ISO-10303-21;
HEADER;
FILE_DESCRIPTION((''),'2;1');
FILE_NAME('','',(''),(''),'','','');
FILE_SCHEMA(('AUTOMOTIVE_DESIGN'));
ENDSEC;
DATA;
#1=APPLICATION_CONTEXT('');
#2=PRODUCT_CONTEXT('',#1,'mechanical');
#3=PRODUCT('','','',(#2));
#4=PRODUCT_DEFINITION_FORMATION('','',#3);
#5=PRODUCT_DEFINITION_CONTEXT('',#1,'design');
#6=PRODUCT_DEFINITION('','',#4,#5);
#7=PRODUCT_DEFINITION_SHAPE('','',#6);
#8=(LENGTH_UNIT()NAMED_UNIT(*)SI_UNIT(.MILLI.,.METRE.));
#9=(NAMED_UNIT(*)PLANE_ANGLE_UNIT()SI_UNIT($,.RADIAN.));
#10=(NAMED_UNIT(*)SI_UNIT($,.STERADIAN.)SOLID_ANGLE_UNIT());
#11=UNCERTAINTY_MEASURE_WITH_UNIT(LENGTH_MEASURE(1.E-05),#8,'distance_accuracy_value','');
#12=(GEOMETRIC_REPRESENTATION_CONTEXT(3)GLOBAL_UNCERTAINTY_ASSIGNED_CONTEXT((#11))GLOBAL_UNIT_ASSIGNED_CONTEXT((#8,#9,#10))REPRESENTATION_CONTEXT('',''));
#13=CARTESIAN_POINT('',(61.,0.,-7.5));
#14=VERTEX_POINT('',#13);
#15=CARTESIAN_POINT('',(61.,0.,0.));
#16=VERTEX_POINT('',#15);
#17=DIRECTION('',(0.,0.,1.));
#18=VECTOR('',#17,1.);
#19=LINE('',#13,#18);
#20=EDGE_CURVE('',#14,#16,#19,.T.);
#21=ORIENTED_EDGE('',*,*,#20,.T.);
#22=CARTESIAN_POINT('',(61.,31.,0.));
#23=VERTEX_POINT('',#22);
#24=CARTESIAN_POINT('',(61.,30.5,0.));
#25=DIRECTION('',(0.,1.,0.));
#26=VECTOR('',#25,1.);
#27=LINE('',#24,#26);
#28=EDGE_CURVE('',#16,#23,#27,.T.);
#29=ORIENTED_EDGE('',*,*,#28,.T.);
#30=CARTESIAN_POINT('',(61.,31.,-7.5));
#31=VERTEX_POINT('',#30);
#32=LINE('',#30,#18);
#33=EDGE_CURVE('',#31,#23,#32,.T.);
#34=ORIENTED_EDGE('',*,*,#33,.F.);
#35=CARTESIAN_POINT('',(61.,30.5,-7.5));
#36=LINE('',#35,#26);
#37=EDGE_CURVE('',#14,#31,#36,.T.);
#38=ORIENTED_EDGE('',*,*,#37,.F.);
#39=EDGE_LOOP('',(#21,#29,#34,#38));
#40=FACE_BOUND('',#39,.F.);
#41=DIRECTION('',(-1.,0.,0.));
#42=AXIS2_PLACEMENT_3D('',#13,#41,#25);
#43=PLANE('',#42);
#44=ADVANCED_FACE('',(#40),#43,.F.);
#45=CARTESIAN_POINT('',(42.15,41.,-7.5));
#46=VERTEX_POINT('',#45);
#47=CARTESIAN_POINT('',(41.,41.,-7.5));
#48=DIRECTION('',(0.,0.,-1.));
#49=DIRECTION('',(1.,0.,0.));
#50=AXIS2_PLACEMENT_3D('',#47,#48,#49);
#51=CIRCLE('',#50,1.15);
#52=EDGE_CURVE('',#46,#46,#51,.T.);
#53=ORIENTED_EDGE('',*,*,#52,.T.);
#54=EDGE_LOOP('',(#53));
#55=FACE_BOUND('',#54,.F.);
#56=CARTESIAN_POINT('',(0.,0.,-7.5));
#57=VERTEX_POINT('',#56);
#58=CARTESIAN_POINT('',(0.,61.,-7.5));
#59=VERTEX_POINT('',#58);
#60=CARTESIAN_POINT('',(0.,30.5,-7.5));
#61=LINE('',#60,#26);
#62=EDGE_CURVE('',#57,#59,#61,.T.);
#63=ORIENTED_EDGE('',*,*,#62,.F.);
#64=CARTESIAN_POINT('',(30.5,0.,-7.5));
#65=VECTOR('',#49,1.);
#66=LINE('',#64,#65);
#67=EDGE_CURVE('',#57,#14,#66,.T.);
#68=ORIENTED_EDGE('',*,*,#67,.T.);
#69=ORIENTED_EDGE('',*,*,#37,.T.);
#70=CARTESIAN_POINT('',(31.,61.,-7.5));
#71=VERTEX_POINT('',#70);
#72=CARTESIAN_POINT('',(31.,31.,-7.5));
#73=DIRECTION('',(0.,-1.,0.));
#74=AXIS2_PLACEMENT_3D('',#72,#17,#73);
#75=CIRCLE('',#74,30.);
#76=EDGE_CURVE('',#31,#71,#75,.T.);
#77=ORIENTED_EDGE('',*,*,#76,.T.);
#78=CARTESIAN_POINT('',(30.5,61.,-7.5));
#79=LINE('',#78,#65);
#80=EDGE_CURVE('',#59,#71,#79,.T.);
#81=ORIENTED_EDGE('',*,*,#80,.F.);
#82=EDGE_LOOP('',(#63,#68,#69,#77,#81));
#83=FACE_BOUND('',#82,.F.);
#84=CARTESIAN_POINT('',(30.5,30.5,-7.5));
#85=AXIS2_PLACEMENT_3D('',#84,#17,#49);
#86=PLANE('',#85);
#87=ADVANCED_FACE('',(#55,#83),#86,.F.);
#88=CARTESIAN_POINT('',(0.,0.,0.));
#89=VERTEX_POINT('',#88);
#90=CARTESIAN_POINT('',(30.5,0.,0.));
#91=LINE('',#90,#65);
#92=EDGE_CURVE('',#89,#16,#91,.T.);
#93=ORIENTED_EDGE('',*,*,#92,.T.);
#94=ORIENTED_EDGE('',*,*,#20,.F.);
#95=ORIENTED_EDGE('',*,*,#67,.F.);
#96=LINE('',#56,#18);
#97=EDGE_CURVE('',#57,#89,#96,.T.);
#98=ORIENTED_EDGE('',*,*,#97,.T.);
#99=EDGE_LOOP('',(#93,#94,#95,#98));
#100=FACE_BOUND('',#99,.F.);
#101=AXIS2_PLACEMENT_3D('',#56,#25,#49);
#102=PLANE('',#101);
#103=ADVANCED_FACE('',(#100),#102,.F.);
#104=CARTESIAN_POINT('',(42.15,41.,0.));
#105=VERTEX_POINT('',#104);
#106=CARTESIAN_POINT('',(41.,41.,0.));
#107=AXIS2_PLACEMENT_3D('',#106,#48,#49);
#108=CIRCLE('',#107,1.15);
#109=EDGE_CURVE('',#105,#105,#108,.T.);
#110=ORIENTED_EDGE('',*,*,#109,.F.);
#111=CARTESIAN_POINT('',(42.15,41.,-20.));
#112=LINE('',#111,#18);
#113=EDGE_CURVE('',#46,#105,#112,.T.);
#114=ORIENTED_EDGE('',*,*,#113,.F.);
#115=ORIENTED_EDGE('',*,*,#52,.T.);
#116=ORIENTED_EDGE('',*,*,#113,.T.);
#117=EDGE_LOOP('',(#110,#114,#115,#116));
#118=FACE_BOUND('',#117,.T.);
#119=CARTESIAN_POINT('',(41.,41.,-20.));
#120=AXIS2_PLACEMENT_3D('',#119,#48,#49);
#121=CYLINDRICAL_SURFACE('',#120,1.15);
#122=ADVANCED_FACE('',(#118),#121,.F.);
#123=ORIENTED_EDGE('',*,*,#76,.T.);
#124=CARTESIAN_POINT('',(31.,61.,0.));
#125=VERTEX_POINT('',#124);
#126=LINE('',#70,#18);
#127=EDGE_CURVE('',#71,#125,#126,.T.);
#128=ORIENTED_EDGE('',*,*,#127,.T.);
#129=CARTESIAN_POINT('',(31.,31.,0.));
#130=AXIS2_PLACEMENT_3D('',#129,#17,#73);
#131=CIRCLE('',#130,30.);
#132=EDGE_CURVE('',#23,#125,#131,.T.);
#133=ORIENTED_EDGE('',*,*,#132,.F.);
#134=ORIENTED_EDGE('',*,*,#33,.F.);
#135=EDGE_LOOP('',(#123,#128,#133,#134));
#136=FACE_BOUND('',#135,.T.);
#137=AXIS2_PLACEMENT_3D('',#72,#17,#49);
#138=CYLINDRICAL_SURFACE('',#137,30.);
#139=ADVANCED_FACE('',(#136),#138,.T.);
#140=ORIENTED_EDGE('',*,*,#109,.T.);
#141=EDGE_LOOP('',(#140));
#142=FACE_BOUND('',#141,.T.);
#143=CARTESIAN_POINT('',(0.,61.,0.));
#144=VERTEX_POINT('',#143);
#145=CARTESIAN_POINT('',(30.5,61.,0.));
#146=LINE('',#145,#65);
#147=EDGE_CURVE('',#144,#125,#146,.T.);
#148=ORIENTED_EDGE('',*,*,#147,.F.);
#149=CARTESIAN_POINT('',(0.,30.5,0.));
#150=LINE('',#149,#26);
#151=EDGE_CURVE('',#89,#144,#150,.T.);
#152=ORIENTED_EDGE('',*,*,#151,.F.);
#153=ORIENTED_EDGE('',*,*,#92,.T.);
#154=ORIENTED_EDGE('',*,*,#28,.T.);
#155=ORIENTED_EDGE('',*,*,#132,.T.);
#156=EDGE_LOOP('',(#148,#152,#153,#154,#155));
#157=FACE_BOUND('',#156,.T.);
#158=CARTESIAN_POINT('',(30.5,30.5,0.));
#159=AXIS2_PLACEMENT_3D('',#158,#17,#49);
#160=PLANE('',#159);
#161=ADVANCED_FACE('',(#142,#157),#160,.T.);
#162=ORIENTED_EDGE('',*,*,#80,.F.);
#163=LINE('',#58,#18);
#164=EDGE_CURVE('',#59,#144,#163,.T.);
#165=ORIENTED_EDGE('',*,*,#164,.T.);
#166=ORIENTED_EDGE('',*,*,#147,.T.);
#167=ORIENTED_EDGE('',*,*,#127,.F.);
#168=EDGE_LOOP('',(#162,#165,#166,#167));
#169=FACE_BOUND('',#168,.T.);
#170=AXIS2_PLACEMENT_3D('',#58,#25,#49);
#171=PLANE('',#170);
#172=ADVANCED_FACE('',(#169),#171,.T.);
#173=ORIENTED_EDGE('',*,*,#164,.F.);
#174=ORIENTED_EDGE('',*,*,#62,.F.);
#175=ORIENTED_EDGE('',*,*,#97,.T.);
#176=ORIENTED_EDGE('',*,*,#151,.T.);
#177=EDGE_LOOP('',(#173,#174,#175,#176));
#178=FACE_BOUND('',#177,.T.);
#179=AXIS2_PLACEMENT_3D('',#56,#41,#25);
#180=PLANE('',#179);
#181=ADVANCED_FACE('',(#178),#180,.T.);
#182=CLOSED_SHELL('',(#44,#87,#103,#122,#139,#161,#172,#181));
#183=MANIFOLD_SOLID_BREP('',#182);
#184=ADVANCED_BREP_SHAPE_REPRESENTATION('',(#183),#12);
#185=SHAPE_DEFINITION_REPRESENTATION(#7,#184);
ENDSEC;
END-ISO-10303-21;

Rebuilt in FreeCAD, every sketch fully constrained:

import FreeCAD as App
import Part
import Sketcher


def edges_at(feature, points):
    """Names of the edges that pass closest to the given points."""
    edges = feature.Shape.Edges
    near = lambda p: min(range(len(edges)), key=lambda i: edges[i].distToShape(Part.Vertex(*p))[0])
    return sorted({f"Edge{near(p) + 1}" for p in points})

doc = App.newDocument("Part")
body = doc.addObject("PartDesign::Body", "Body")

sketch1 = body.newObject("Sketcher::SketchObject", "Sketch")
sketch1.AttachmentSupport = (doc.getObject("XY_Plane"), [""])
sketch1.MapMode = "FlatFace"
sketch1.AttachmentOffset = App.Placement(App.Vector(0, 0, -20), App.Rotation())
sketch1.addGeometry(Part.Circle(App.Vector(41, 41, 0), App.Vector(0, 0, 1), 1.15), False)
sketch1.addConstraint([
    Sketcher.Constraint("Diameter", 0, 2.3),
    Sketcher.Constraint("DistanceX", -1, 1, 0, 3, 41.0),
    Sketcher.Constraint("DistanceY", -1, 1, 0, 3, 41.0),
])
pad1 = body.newObject("PartDesign::Pad", "Pad")
pad1.Profile = sketch1
pad1.Length = 40
body2 = doc.addObject("PartDesign::Body", "Body001")

sketch2 = body2.newObject("Sketcher::SketchObject", "Sketch001")
sketch2.AttachmentSupport = (doc.getObject("XY_Plane001"), [""])
sketch2.MapMode = "FlatFace"
sketch2.AttachmentOffset = App.Placement(App.Vector(0, 0, -7.5), App.Rotation())
sketch2.addGeometry([
    Part.LineSegment(App.Vector(0, 61, 0), App.Vector(0, 0, 0)),
    Part.LineSegment(App.Vector(0, 0, 0), App.Vector(61, 0, 0)),
    Part.LineSegment(App.Vector(61, 0, 0), App.Vector(61, 61, 0)),
    Part.LineSegment(App.Vector(61, 61, 0), App.Vector(0, 61, 0)),
], False)
sketch2.addConstraint([
    Sketcher.Constraint("Coincident", 0, 2, 1, 1),
    Sketcher.Constraint("Coincident", 1, 2, 2, 1),
    Sketcher.Constraint("Coincident", 2, 2, 3, 1),
    Sketcher.Constraint("Coincident", 3, 2, 0, 1),
    Sketcher.Constraint("Vertical", 0),
    Sketcher.Constraint("Horizontal", 1),
    Sketcher.Constraint("Vertical", 2),
    Sketcher.Constraint("Horizontal", 3),
    Sketcher.Constraint("Coincident", 0, 2, -1, 1),
    Sketcher.Constraint("Equal", 3, 0),
    Sketcher.Constraint("DistanceX", 1, 1, 1, 2, 61.0),
])
pad2 = body2.newObject("PartDesign::Pad", "Pad001")
pad2.Profile = sketch2
pad2.Length = 7.5
doc.recompute()

fillet = body2.newObject("PartDesign::Fillet", "Fillet")
fillet.Base = (pad2, edges_at(pad2, [(61, 61, -3.75)]))
fillet.Radius = 30
doc.recompute()

boolean = body2.newObject("PartDesign::Boolean", "Boolean")
boolean.Type = "Cut"
boolean.addObjects([body])

doc.recompute()
